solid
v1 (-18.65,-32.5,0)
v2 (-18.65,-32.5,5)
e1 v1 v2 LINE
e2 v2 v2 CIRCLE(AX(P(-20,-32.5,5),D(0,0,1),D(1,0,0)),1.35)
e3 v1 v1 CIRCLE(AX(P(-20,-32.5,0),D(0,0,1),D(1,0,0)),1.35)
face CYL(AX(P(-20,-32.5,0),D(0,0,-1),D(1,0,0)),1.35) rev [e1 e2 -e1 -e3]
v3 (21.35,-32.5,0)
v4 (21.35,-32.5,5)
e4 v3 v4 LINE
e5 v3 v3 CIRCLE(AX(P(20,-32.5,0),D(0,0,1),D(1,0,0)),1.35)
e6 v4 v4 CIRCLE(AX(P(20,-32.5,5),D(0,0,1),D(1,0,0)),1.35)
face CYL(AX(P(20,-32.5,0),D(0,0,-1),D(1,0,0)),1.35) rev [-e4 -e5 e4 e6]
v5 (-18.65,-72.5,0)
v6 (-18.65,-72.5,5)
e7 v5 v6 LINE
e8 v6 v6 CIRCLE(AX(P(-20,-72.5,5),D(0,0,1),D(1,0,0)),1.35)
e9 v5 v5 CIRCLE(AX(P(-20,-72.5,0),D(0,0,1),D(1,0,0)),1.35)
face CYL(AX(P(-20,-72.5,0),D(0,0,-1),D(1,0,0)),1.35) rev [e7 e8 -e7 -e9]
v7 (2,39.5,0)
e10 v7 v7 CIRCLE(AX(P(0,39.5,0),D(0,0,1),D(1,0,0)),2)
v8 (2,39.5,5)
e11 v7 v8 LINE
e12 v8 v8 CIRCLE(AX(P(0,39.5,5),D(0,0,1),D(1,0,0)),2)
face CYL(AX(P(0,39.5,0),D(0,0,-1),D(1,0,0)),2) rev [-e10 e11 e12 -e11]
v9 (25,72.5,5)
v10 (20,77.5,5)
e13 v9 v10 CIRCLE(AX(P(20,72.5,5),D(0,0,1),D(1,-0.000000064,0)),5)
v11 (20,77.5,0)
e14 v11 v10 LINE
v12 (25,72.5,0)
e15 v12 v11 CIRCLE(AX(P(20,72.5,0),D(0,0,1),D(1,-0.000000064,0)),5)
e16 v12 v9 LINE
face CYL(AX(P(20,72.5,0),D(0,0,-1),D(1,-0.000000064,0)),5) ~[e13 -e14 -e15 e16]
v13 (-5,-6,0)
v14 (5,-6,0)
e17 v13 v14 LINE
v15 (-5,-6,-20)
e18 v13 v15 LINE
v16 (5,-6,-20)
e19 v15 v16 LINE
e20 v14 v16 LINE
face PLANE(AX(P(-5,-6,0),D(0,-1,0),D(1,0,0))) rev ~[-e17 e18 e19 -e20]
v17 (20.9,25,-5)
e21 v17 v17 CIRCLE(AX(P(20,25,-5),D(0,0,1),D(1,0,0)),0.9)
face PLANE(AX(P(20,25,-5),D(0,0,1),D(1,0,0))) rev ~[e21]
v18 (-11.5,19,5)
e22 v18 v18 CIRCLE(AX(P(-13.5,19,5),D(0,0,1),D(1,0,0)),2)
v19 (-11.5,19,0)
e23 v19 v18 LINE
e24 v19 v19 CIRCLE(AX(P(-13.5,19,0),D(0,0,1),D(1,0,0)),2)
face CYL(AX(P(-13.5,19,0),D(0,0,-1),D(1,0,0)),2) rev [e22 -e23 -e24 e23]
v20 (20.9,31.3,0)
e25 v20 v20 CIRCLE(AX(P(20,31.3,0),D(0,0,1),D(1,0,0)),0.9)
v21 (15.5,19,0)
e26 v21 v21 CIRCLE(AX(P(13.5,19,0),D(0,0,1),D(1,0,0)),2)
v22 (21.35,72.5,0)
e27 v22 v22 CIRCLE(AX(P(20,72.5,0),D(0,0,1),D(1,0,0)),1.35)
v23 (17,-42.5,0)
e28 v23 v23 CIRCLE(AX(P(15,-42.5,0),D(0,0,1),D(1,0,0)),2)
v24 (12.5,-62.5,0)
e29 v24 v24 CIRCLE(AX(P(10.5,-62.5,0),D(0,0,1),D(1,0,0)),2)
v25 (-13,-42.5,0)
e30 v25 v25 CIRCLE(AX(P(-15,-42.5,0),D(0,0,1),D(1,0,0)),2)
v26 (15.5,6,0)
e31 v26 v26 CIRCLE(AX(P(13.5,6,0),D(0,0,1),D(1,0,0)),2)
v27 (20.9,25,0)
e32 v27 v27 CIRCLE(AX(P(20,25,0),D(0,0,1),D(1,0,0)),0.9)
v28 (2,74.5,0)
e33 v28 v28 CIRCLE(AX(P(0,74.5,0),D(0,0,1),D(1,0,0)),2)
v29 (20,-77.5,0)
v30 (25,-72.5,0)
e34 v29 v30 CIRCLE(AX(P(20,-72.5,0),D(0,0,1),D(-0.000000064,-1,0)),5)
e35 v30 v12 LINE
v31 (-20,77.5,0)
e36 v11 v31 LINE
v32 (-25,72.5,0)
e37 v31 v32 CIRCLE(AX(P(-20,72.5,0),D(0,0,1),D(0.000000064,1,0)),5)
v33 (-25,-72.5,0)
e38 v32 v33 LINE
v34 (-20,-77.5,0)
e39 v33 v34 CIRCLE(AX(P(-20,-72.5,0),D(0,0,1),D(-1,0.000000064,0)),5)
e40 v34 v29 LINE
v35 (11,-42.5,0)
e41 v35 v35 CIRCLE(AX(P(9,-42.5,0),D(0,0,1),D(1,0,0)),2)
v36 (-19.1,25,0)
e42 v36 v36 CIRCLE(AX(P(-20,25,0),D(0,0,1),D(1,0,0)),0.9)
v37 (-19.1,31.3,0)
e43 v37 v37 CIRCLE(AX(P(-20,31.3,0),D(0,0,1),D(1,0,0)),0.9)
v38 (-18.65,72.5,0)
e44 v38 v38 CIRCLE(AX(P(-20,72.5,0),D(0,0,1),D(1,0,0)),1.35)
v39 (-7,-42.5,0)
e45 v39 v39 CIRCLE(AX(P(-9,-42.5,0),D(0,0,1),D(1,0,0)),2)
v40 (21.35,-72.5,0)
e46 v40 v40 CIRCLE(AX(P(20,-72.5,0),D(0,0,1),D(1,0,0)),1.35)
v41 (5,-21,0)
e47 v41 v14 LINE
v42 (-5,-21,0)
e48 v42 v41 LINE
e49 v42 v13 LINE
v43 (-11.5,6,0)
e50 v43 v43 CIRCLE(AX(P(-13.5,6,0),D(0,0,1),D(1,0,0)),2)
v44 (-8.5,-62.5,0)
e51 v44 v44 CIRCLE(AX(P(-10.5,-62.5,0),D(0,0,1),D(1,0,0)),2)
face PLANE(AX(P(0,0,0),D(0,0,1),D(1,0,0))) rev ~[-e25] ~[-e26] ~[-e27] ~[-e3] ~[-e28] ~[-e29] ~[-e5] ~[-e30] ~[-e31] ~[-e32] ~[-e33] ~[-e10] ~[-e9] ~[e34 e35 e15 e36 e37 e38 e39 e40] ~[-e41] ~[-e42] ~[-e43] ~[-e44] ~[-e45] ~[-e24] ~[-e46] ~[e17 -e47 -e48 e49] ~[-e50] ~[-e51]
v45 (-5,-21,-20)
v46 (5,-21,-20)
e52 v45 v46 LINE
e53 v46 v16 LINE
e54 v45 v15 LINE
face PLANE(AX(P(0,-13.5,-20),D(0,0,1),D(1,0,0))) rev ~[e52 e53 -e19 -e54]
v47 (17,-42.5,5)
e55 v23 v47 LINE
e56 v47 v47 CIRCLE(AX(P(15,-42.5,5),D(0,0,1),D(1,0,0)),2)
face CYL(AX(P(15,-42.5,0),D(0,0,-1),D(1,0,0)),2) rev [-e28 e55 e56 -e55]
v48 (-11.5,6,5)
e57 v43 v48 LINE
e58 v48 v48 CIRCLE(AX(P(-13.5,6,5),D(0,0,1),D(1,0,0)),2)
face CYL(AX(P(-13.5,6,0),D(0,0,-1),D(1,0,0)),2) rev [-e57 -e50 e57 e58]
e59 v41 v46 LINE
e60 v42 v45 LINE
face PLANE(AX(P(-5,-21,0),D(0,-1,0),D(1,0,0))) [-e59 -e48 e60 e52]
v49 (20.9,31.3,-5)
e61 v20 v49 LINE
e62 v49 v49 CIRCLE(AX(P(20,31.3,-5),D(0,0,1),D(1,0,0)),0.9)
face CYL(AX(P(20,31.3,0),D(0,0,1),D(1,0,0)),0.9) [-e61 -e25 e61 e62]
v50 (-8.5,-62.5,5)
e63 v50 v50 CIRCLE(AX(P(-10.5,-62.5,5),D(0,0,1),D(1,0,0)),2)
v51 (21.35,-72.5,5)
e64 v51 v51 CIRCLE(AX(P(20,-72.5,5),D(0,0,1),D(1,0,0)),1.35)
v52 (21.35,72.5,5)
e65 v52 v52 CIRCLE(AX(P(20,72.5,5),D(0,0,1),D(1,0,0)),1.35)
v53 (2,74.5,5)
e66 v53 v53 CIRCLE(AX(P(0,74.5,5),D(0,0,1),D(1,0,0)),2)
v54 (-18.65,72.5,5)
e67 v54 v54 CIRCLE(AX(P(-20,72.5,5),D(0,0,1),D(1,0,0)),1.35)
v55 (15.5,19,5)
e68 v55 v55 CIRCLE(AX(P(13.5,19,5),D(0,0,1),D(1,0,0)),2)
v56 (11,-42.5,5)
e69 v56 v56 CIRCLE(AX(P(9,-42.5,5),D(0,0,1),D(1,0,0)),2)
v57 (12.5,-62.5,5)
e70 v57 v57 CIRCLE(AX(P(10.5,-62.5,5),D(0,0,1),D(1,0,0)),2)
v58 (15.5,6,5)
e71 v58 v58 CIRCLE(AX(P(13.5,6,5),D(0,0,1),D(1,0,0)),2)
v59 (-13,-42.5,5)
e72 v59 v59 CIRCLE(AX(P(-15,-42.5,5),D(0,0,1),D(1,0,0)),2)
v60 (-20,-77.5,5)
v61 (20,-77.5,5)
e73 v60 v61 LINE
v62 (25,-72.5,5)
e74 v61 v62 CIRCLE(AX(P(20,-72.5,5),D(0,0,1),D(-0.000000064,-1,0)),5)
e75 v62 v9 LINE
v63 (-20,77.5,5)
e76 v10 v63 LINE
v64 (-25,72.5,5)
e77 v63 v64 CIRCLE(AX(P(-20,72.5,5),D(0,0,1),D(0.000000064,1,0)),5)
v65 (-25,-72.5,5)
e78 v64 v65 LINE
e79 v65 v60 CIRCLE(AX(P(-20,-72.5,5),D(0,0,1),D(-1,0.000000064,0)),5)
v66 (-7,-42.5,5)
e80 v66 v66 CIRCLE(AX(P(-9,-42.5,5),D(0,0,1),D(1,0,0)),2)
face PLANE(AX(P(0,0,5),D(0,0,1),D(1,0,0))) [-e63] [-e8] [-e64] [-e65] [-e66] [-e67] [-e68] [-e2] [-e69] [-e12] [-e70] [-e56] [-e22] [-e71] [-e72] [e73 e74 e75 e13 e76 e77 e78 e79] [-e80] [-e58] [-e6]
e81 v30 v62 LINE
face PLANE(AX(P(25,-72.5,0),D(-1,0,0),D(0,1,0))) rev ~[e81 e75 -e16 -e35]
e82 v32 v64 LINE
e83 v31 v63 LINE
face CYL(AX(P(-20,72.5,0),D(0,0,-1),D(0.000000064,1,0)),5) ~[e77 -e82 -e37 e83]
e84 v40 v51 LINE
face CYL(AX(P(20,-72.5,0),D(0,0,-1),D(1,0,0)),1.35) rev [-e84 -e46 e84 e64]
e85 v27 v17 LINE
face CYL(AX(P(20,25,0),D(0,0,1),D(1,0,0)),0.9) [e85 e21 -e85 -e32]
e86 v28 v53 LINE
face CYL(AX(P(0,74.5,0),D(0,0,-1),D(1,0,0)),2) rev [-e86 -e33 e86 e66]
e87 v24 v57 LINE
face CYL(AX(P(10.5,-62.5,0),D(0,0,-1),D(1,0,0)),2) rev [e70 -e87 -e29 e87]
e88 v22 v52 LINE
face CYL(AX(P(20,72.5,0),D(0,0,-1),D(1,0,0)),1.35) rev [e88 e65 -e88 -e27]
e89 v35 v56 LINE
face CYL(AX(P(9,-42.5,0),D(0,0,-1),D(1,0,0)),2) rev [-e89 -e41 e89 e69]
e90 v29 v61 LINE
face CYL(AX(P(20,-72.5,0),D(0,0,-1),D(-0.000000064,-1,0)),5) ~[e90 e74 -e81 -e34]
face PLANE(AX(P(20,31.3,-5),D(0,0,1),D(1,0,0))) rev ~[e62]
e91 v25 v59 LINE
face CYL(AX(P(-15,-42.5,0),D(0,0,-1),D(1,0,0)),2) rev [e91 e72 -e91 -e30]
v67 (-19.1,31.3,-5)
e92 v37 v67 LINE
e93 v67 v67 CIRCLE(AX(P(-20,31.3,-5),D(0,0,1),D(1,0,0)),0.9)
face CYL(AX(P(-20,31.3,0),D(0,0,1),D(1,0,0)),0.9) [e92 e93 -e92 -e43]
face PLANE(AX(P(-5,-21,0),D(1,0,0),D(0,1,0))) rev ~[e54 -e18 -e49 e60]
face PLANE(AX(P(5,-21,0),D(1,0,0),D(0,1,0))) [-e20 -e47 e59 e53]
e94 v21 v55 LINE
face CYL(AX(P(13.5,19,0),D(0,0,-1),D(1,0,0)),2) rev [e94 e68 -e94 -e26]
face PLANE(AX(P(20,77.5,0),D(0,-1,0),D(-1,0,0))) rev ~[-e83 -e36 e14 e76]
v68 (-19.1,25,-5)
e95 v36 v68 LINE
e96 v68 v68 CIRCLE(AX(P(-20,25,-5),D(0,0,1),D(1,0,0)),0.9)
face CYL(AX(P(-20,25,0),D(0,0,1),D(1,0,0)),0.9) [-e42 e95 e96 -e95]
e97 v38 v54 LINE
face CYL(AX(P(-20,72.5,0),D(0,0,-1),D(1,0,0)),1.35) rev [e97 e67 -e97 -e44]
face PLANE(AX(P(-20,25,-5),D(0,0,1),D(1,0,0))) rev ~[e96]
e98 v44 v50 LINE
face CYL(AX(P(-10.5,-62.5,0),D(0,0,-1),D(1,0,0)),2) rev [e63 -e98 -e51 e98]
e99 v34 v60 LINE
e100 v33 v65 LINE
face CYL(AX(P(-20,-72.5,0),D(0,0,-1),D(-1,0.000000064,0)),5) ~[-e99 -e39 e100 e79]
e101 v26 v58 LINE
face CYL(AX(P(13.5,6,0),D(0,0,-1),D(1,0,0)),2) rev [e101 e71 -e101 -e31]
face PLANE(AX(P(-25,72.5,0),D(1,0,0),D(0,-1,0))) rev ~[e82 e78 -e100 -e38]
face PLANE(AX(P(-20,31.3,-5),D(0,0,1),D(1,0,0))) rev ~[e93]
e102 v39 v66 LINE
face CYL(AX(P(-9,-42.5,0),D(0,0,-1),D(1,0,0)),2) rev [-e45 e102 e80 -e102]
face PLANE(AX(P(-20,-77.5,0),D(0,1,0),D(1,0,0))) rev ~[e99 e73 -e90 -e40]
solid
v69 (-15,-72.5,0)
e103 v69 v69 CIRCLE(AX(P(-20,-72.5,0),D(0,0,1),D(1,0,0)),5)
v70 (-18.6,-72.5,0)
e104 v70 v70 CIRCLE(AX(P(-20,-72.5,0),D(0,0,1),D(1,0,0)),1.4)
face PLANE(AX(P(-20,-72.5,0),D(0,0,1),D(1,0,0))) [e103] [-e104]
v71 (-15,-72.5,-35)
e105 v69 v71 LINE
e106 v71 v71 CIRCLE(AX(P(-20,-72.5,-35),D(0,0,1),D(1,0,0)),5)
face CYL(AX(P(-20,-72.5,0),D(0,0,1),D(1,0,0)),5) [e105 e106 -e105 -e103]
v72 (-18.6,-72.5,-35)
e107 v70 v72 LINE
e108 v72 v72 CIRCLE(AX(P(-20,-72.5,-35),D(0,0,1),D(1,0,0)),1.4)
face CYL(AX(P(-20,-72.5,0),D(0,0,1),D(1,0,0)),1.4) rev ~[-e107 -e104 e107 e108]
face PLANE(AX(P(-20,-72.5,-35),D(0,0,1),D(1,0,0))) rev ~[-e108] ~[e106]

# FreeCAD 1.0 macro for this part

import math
import FreeCAD as App
import Part
import Sketcher

doc = App.newDocument("Part")
body = doc.addObject("PartDesign::Body", "Body")

# Sketch on XY plane
sketch1 = doc.addObject("Sketcher::SketchObject", "Sketch")
body.addObject(sketch1)
sketch1.AttachmentSupport = (doc.XY_Plane, [""])
sketch1.MapMode = "FlatFace"
sketch1.addGeometry([
    Part.LineSegment(App.Vector(-25, 72.5, 0), App.Vector(-25, -72.5, 0)),  # 0
    Part.ArcOfCircle(Part.Circle(App.Vector(-20, -72.5, 0), App.Vector(0, 0, 1), 5), math.radians(179.999996), math.radians(270.000004)),  # 1
    Part.LineSegment(App.Vector(-20, -77.5, 0), App.Vector(20, -77.5, 0)),  # 2
    Part.ArcOfCircle(Part.Circle(App.Vector(20, -72.5, 0), App.Vector(0, 0, 1), 5), math.radians(-90.000004), math.radians(0.000004)),  # 3
    Part.LineSegment(App.Vector(25, -72.5, 0), App.Vector(25, 72.5, 0)),  # 4
    Part.ArcOfCircle(Part.Circle(App.Vector(20, 72.5, 0), App.Vector(0, 0, 1), 5), math.radians(-0.000004), math.radians(90.000004)),  # 5
    Part.LineSegment(App.Vector(20, 77.5, 0), App.Vector(-20, 77.5, 0)),  # 6
    Part.ArcOfCircle(Part.Circle(App.Vector(-20, 72.5, 0), App.Vector(0, 0, 1), 5), math.radians(89.999996), math.radians(180.000004)),  # 7
    Part.Circle(App.Vector(-20, -72.5, 0), App.Vector(0, 0, 1), 1.35),  # 8
    Part.Circle(App.Vector(-15, -42.5, 0), App.Vector(0, 0, 1), 2),  # 9
    Part.Circle(App.Vector(-10.5, -62.5, 0), App.Vector(0, 0, 1), 2),  # 10
    Part.Circle(App.Vector(-9, -42.5, 0), App.Vector(0, 0, 1), 2),  # 11
    Part.Circle(App.Vector(-20, -32.5, 0), App.Vector(0, 0, 1), 1.35),  # 12
    Part.Circle(App.Vector(10.5, -62.5, 0), App.Vector(0, 0, 1), 2),  # 13
    Part.Circle(App.Vector(9, -42.5, 0), App.Vector(0, 0, 1), 2),  # 14
    Part.Circle(App.Vector(20, -72.5, 0), App.Vector(0, 0, 1), 1.35),  # 15
    Part.Circle(App.Vector(15, -42.5, 0), App.Vector(0, 0, 1), 2),  # 16
    Part.Circle(App.Vector(20, -32.5, 0), App.Vector(0, 0, 1), 1.35),  # 17
    Part.Circle(App.Vector(-13.5, 6, 0), App.Vector(0, 0, 1), 2),  # 18
    Part.Circle(App.Vector(-13.5, 19, 0), App.Vector(0, 0, 1), 2),  # 19
    Part.Circle(App.Vector(-20, 72.5, 0), App.Vector(0, 0, 1), 1.35),  # 20
    Part.Circle(App.Vector(13.5, 6, 0), App.Vector(0, 0, 1), 2),  # 21
    Part.Circle(App.Vector(13.5, 19, 0), App.Vector(0, 0, 1), 2),  # 22
    Part.Circle(App.Vector(0, 39.5, 0), App.Vector(0, 0, 1), 2),  # 23
    Part.Circle(App.Vector(0, 74.5, 0), App.Vector(0, 0, 1), 2),  # 24
    Part.Circle(App.Vector(20, 72.5, 0), App.Vector(0, 0, 1), 1.35),  # 25
], False)
sketch1.addConstraint([
    Sketcher.Constraint("Tangent", 0, 2, 1, 1),
    Sketcher.Constraint("Tangent", 1, 2, 2, 1),
    Sketcher.Constraint("Tangent", 2, 2, 3, 1),
    Sketcher.Constraint("Tangent", 3, 2, 4, 1),
    Sketcher.Constraint("Tangent", 4, 2, 5, 1),
    Sketcher.Constraint("Tangent", 5, 2, 6, 1),
    Sketcher.Constraint("Tangent", 6, 2, 7, 1),
    Sketcher.Constraint("Tangent", 7, 2, 0, 1),
    Sketcher.Constraint("Vertical", 0),
    Sketcher.Constraint("Horizontal", 2),
    Sketcher.Constraint("Vertical", 4),
    Sketcher.Constraint("Horizontal", 6),
    Sketcher.Constraint("Coincident", 8, 3, 1, 3),
    Sketcher.Constraint("Coincident", 15, 3, 3, 3),
    Sketcher.Constraint("Coincident", 20, 3, 7, 3),
    Sketcher.Constraint("Coincident", 25, 3, 5, 3),
    Sketcher.Constraint("Equal", 1, 3),
    Sketcher.Constraint("Equal", 3, 5),
    Sketcher.Constraint("Equal", 5, 7),
    Sketcher.Constraint("Equal", 9, 10),
    Sketcher.Constraint("Equal", 10, 11),
    Sketcher.Constraint("Equal", 8, 12),
    Sketcher.Constraint("Equal", 11, 13),
    Sketcher.Constraint("Equal", 13, 14),
    Sketcher.Constraint("Equal", 12, 15),
    Sketcher.Constraint("Equal", 14, 16),
    Sketcher.Constraint("Equal", 15, 17),
    Sketcher.Constraint("Equal", 16, 18),
    Sketcher.Constraint("Equal", 18, 19),
    Sketcher.Constraint("Equal", 17, 20),
    Sketcher.Constraint("Equal", 19, 21),
    Sketcher.Constraint("Equal", 21, 22),
    Sketcher.Constraint("Equal", 22, 23),
    Sketcher.Constraint("Equal", 23, 24),
    Sketcher.Constraint("Equal", 20, 25),
    Sketcher.Constraint("Symmetric", 1, 3, 5, 3, -1, 1),
    Sketcher.Constraint("Symmetric", 10, 3, 13, 3, -2),
    Sketcher.Constraint("Symmetric", 11, 3, 14, 3, -2),
    Sketcher.Constraint("Symmetric", 9, 3, 16, 3, -2),
    Sketcher.Constraint("Symmetric", 12, 3, 17, 3, -2),
    Sketcher.Constraint("Symmetric", 18, 3, 21, 3, -2),
    Sketcher.Constraint("Symmetric", 19, 3, 22, 3, -2),
    Sketcher.Constraint("PointOnObject", 23, 3, -2),
    Sketcher.Constraint("PointOnObject", 24, 3, -2),
    Sketcher.Constraint("Horizontal", 9, 3, 11, 3),
    Sketcher.Constraint("Vertical", 8, 3, 12, 3),
    Sketcher.Constraint("Vertical", 18, 3, 19, 3),
    Sketcher.Constraint("Diameter", 9, 4.0),
    Sketcher.Constraint("Radius", 1, 5.0),
    Sketcher.Constraint("Diameter", 8, 2.7),
    Sketcher.Constraint("DistanceX", 2, 1, 2, 2, 40.0),
    Sketcher.Constraint("DistanceY", 0, 2, 0, 1, 145.0),
    Sketcher.Constraint("DistanceX", 9, 3, -1, 1, 15.0),
    Sketcher.Constraint("DistanceX", 11, 3, -1, 1, 9.0),
    Sketcher.Constraint("DistanceY", -1, 1, 18, 3, 6.0),
    Sketcher.Constraint("DistanceY", -1, 1, 19, 3, 19.0),
    Sketcher.Constraint("DistanceY", 8, 3, 9, 3, 30.0),
    Sketcher.Constraint("DistanceY", 8, 3, 10, 3, 10.0),
    Sketcher.Constraint("DistanceY", 9, 3, 12, 3, 10.0),
    Sketcher.Constraint("DistanceX", 10, 3, 13, 3, 21.0),
    Sketcher.Constraint("DistanceX", 18, 3, 21, 3, 27.0),
    Sketcher.Constraint("DistanceY", 23, 3, 20, 3, 33.0),
    Sketcher.Constraint("DistanceY", 20, 3, 24, 3, 2.0),
])
pad1 = doc.addObject("PartDesign::Pad", "Pad")
body.addObject(pad1)
pad1.Profile = sketch1
pad1.Length = 5

# Sketch on XY plane
sketch2 = doc.addObject("Sketcher::SketchObject", "Sketch001")
body.addObject(sketch2)
sketch2.AttachmentSupport = (doc.XY_Plane, [""])
sketch2.MapMode = "FlatFace"
sketch2.addGeometry([
    Part.LineSegment(App.Vector(-5, -6, 0), App.Vector(-5, -21, 0)),
    Part.LineSegment(App.Vector(-5, -21, 0), App.Vector(5, -21, 0)),
    Part.LineSegment(App.Vector(5, -21, 0), App.Vector(5, -6, 0)),
    Part.LineSegment(App.Vector(5, -6, 0), App.Vector(-5, -6, 0)),
], False)
sketch2.addConstraint([
    Sketcher.Constraint("Coincident", 0, 2, 1, 1),
    Sketcher.Constraint("Coincident", 1, 2, 2, 1),
    Sketcher.Constraint("Coincident", 2, 2, 3, 1),
    Sketcher.Constraint("Coincident", 3, 2, 0, 1),
    Sketcher.Constraint("Vertical", 0),
    Sketcher.Constraint("Horizontal", 1),
    Sketcher.Constraint("Vertical", 2),
    Sketcher.Constraint("Horizontal", 3),
    Sketcher.Constraint("DistanceX", 1, 1, 1, 2, 10.0),
    Sketcher.Constraint("DistanceY", 0, 2, 0, 1, 15.0),
    Sketcher.Constraint("DistanceX", 0, 2, -1, 1, 5.0),
    Sketcher.Constraint("DistanceY", 0, 2, -1, 1, 21.0),
])
pad2 = doc.addObject("PartDesign::Pad", "Pad001")
body.addObject(pad2)
pad2.Profile = sketch2
pad2.Length = 20
pad2.Reversed = True

# Sketch on XY plane
sketch3 = doc.addObject("Sketcher::SketchObject", "Sketch002")
body.addObject(sketch3)
sketch3.AttachmentSupport = (doc.XY_Plane, [""])
sketch3.MapMode = "FlatFace"
sketch3.addGeometry([
    Part.Circle(App.Vector(-20, 25, 0), App.Vector(0, 0, 1), 0.9),
    Part.Circle(App.Vector(-20, 31.3, 0), App.Vector(0, 0, 1), 0.9),
    Part.Circle(App.Vector(20, 25, 0), App.Vector(0, 0, 1), 0.9),
    Part.Circle(App.Vector(20, 31.3, 0), App.Vector(0, 0, 1), 0.9),
], False)
sketch3.addConstraint([
    Sketcher.Constraint("Equal", 0, 1),
    Sketcher.Constraint("Equal", 1, 2),
    Sketcher.Constraint("Equal", 2, 3),
    Sketcher.Constraint("Symmetric", 0, 3, 2, 3, -2),
    Sketcher.Constraint("Symmetric", 1, 3, 3, 3, -2),
    Sketcher.Constraint("Vertical", 0, 3, 1, 3),
    Sketcher.Constraint("Diameter", 0, 1.8),
    Sketcher.Constraint("DistanceX", 0, 3, -1, 1, 20.0),
    Sketcher.Constraint("DistanceY", -1, 1, 0, 3, 25.0),
    Sketcher.Constraint("DistanceY", -1, 1, 1, 3, 31.3),
])
pad3 = doc.addObject("PartDesign::Pad", "Pad002")
body.addObject(pad3)
pad3.Profile = sketch3
pad3.Length = 5
pad3.Reversed = True
body2 = doc.addObject("PartDesign::Body", "Body001")

# Sketch on XY plane
sketch4 = doc.addObject("Sketcher::SketchObject", "Sketch003")
body2.addObject(sketch4)
sketch4.AttachmentSupport = (doc.getObject("XY_Plane001"), [""])
sketch4.MapMode = "FlatFace"
sketch4.addGeometry([
    Part.Circle(App.Vector(-20, -72.5, 0), App.Vector(0, 0, 1), 5),
    Part.Circle(App.Vector(-20, -72.5, 0), App.Vector(0, 0, 1), 1.4),
], False)
sketch4.addConstraint([
    Sketcher.Constraint("Coincident", 1, 3, 0, 3),
    Sketcher.Constraint("Diameter", 0, 10.0),
    Sketcher.Constraint("Diameter", 1, 2.8),
    Sketcher.Constraint("DistanceX", 0, 3, -1, 1, 20.0),
    Sketcher.Constraint("DistanceY", 0, 3, -1, 1, 72.5),
])
pad4 = doc.addObject("PartDesign::Pad", "Pad003")
body2.addObject(pad4)
pad4.Profile = sketch4
pad4.Length = 35
pad4.Reversed = True

doc.recompute()
